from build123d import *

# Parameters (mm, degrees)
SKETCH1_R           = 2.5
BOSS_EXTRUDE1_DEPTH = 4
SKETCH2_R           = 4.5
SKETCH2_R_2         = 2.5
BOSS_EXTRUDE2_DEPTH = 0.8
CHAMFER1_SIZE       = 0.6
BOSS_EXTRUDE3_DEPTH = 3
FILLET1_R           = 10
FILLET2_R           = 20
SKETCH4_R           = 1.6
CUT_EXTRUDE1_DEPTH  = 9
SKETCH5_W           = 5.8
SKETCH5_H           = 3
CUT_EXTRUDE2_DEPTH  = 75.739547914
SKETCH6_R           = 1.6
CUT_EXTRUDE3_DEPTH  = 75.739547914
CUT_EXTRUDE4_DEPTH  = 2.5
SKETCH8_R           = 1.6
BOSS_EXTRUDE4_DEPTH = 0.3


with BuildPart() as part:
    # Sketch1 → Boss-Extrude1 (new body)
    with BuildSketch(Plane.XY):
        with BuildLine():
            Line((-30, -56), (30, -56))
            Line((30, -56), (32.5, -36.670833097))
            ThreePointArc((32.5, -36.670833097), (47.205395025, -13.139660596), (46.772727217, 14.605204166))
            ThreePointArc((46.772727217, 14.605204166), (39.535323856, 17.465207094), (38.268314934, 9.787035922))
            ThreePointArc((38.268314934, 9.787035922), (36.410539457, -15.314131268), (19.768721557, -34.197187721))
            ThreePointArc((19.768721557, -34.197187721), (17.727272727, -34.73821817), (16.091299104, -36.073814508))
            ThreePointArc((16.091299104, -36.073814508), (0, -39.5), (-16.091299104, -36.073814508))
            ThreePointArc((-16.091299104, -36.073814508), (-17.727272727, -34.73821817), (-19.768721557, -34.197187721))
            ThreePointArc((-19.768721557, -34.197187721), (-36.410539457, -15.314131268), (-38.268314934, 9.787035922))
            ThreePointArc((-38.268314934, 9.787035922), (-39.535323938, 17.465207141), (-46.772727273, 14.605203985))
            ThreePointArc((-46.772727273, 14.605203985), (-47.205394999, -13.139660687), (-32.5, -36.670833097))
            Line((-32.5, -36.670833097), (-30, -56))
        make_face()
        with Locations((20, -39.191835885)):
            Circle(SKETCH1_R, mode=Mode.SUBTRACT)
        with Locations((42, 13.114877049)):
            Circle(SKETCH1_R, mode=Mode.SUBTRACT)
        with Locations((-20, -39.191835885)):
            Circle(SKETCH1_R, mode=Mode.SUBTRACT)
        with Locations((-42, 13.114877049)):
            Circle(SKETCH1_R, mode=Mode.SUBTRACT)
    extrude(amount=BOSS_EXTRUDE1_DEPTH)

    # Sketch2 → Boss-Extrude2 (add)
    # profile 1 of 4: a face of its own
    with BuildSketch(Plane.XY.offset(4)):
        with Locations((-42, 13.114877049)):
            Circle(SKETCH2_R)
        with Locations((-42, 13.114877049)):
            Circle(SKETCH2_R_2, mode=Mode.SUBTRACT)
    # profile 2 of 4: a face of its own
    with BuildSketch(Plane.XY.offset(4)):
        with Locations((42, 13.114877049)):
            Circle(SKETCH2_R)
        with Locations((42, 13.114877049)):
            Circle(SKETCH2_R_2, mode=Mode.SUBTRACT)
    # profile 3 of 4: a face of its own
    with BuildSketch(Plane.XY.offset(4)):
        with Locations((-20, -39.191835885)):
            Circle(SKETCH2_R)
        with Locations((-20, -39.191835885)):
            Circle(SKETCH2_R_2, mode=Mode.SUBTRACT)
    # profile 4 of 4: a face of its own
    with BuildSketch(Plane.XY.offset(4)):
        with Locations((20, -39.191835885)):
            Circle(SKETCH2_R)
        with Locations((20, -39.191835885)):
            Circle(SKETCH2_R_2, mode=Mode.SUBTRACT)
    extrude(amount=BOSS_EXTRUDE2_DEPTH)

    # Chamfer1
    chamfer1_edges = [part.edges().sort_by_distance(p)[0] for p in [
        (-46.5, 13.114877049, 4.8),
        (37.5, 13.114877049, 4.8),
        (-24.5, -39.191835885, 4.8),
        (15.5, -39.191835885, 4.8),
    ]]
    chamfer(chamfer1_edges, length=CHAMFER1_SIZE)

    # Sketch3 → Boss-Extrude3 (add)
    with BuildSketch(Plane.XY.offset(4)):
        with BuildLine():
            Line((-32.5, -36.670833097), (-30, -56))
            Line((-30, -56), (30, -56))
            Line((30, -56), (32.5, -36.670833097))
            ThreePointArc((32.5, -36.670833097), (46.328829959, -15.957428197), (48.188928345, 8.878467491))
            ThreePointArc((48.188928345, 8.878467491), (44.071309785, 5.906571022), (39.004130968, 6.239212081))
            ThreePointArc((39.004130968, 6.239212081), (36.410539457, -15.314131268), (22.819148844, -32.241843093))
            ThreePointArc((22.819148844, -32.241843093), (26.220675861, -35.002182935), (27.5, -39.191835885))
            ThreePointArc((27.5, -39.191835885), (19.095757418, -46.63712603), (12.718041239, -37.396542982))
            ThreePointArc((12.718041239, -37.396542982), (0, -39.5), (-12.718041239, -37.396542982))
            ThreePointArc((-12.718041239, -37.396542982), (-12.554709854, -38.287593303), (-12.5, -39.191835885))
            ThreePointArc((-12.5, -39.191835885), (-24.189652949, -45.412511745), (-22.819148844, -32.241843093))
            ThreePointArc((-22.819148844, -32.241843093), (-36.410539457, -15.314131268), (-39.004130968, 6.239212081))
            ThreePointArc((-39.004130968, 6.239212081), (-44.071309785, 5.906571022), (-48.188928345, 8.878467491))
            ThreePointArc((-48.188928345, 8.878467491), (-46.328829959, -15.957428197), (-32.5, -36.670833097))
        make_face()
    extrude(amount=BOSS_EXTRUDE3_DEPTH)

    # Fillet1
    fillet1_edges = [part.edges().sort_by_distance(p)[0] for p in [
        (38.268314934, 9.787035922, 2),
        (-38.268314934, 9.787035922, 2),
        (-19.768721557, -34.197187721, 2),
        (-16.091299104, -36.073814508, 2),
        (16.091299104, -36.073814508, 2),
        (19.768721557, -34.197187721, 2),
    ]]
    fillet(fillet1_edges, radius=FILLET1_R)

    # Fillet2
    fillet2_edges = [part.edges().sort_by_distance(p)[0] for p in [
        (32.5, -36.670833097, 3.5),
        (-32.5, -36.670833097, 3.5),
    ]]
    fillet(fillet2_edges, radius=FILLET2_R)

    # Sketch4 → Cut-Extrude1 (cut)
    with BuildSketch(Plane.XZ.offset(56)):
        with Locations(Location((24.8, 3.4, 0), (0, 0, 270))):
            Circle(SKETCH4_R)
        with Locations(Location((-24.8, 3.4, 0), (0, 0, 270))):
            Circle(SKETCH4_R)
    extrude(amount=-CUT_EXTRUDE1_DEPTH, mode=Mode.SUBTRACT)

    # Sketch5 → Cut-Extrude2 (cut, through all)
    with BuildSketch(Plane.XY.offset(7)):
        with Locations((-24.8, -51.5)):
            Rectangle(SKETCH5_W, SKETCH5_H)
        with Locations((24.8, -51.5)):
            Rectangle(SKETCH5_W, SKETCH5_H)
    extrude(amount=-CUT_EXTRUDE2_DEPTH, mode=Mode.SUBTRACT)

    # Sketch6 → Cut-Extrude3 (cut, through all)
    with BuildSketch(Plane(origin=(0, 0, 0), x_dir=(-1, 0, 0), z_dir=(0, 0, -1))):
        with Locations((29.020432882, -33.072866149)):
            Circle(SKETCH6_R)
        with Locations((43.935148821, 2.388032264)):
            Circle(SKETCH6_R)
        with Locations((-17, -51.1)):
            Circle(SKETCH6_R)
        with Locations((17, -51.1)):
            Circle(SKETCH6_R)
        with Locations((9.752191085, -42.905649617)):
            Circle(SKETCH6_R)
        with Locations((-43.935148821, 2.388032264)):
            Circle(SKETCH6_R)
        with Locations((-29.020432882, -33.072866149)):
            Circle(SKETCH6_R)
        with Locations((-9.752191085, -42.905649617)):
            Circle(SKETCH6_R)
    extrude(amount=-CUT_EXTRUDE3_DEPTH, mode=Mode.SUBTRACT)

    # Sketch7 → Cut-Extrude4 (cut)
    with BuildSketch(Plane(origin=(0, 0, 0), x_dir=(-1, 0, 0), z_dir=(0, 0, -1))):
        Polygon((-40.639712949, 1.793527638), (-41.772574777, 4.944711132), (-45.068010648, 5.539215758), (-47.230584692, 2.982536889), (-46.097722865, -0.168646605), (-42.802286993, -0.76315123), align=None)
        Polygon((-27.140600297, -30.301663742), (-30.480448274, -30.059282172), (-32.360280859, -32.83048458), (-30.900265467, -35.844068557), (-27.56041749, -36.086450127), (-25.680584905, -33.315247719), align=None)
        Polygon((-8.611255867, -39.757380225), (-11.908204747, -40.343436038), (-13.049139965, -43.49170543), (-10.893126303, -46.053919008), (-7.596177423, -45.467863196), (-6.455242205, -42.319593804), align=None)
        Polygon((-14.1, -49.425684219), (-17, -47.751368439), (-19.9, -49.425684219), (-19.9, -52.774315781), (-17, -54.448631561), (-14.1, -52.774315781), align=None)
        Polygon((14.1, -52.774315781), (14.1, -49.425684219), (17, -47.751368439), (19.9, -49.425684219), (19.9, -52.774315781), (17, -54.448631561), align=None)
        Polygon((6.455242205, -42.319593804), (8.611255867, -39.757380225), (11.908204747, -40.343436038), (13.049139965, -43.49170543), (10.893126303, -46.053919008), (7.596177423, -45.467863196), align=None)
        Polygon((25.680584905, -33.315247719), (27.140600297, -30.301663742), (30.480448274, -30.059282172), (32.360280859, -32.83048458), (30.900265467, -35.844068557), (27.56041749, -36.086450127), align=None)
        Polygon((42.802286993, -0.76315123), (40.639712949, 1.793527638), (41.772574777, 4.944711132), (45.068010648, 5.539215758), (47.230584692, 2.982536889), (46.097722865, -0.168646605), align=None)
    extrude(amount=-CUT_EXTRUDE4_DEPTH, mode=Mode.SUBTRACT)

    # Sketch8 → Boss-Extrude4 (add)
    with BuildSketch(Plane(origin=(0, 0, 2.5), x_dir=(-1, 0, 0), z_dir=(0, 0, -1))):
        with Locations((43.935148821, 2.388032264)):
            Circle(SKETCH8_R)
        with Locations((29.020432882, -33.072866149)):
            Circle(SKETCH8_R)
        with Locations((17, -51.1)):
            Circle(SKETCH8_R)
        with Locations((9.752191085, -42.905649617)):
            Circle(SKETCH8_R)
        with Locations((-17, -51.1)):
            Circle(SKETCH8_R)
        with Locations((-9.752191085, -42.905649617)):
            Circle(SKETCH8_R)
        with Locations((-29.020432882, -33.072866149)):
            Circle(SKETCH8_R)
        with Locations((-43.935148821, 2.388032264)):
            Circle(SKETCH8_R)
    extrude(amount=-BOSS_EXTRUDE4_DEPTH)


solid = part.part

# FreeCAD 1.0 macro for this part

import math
import FreeCAD as App
import Part
import Sketcher

V = App.Vector
Q = App.Units.Quantity


def edges_at(feature, points):
    """Names of the edges that pass closest to the given points."""
    edges = feature.Shape.Edges
    near = lambda p: min(range(len(edges)), key=lambda i: edges[i].distToShape(Part.Vertex(*p))[0])
    return sorted({f"Edge{near(p) + 1}" for p in points})


def add_polygon(sketch, points):
    """Adds a closed chain of lines whose ends are joined by coincident constraints."""
    first, n = sketch.GeometryCount, len(points)
    for a, b in zip(points, points[1:] + points[:1]):
        sketch.addGeometry(Part.LineSegment(App.Vector(*a, 0), App.Vector(*b, 0)), False)
    for i in range(n):
        sketch.addConstraint(Sketcher.Constraint("Coincident", first + i, 2, first + (i + 1) % n, 1))

doc = App.newDocument("Part")
params = doc.addObject("Spreadsheet::Sheet", "Params")
for row, (alias, value) in enumerate([
    ("sketch1_diameter", "5 mm"),
    ("sketch1_radius", "49 mm"),
    ("sketch1_radius2", "5 mm"),
    ("sketch1_radius3", "39.5 mm"),
    ("sketch1_width", "60 mm"),
    ("pad1_length", "4 mm"),
    ("sketch2_diameter", "9 mm"),
    ("sketch2_diameter2", "5 mm"),
    ("pad2_length", "0.8 mm"),
    ("chamfer_size", "0.6 mm"),
    ("sketch3_radius", "49 mm"),
    ("sketch3_radius2", "7.5 mm"),
    ("sketch3_radius3", "39.5 mm"),
    ("sketch3_width", "60 mm"),
    ("pad3_length", "3 mm"),
    ("fillet_radius", "10 mm"),
    ("fillet2_radius", "20 mm"),
    ("sketch4_diameter", "3.2 mm"),
    ("pocket1_length", "9 mm"),
    ("sketch5_height", "3 mm"),
    ("sketch5_width", "5.8 mm"),
    ("sketch6_diameter", "3.2 mm"),
    ("pocket4_length", "2.5 mm"),
    ("sketch8_diameter", "3.2 mm"),
    ("pad4_length", "0.3 mm"),
], start=1):
    params.set(f"A{row}", alias)
    params.set(f"B{row}", "=" + value)
    params.setAlias(f"B{row}", alias)

body = doc.addObject("PartDesign::Body", "Body")

sketch1 = doc.addObject("Sketcher::SketchObject", "Sketch")
body.addObject(sketch1)
sketch1.AttachmentSupport = (doc.XY_Plane, [""])
sketch1.MapMode = "FlatFace"
sketch1.addGeometry([
    Part.LineSegment(V(-30, -56, 0), V(30, -56, 0)),
    Part.LineSegment(V(30, -56, 0), V(32.5, -36.7, 0)),
    Part.ArcOfCircle(Part.Circle(V(0, 0, 0), V(0, 0, 1), 49), math.radians(-48), math.radians(17)),
    Part.ArcOfCircle(Part.Circle(V(42, 13.1, 0), V(0, 0, 1), 5), math.radians(17), math.radians(222)),
    Part.ArcOfCircle(Part.Circle(V(0, 0, 0), V(0, 0, 1), 39.5), math.radians(-60), math.radians(14)),
    Part.ArcOfCircle(Part.Circle(V(20, -39.2, 0), V(0, 0, 1), 5), math.radians(93), math.radians(141)),
    Part.ArcOfCircle(Part.Circle(V(0, 0, 0), V(0, 0, 1), 39.5), math.radians(-114), math.radians(-66)),
    Part.ArcOfCircle(Part.Circle(V(-20, -39.2, 0), V(0, 0, 1), 5), math.radians(39), math.radians(87)),
    Part.ArcOfCircle(Part.Circle(V(0, 0, 0), V(0, 0, 1), 39.5), math.radians(166), math.radians(240)),
    Part.ArcOfCircle(Part.Circle(V(-42, 13.1, 0), V(0, 0, 1), 5), math.radians(-42), math.radians(163)),
    Part.ArcOfCircle(Part.Circle(V(0, 0, 0), V(0, 0, 1), 49), math.radians(163), math.radians(228)),
    Part.LineSegment(V(-32.5, -36.7, 0), V(-30, -56, 0)),
    Part.Circle(V(-20, -39.2, 0), V(0, 0, 1), 2.5),
    Part.Circle(V(20, -39.2, 0), V(0, 0, 1), 2.5),
    Part.Circle(V(-42, 13.1, 0), V(0, 0, 1), 2.5),
    Part.Circle(V(42, 13.1, 0), V(0, 0, 1), 2.5),
], False)
sketch1.addConstraint([
    Sketcher.Constraint("Coincident", 0, 2, 1, 1),
    Sketcher.Constraint("Coincident", 1, 2, 2, 1),
    Sketcher.Constraint("Tangent", 2, 2, 3, 1),
    Sketcher.Constraint("Coincident", 3, 2, 4, 2),
    Sketcher.Constraint("Coincident", 4, 1, 5, 1),
    Sketcher.Constraint("Coincident", 5, 2, 6, 2),
    Sketcher.Constraint("Coincident", 6, 1, 7, 1),
    Sketcher.Constraint("Coincident", 7, 2, 8, 2),
    Sketcher.Constraint("Coincident", 8, 1, 9, 1),
    Sketcher.Constraint("Tangent", 9, 2, 10, 1),
    Sketcher.Constraint("Coincident", 10, 2, 11, 1),
    Sketcher.Constraint("Coincident", 11, 2, 0, 1),
    Sketcher.Constraint("Horizontal", 0),
    Sketcher.Constraint("Coincident", 2, 3, -1, 1),
    Sketcher.Constraint("Coincident", 4, 3, -1, 1),
    Sketcher.Constraint("Coincident", 6, 3, -1, 1),
    Sketcher.Constraint("Coincident", 8, 3, -1, 1),
    Sketcher.Constraint("Coincident", 10, 3, -1, 1),
    Sketcher.Constraint("Coincident", 12, 3, 7, 3),
    Sketcher.Constraint("Coincident", 13, 3, 5, 3),
    Sketcher.Constraint("Coincident", 14, 3, 9, 3),
    Sketcher.Constraint("Coincident", 15, 3, 3, 3),
    Sketcher.Constraint("Equal", 3, 5),
    Sketcher.Constraint("Equal", 4, 6),
    Sketcher.Constraint("Equal", 5, 7),
    Sketcher.Constraint("Equal", 6, 8),
    Sketcher.Constraint("Equal", 7, 9),
    Sketcher.Constraint("Equal", 2, 10),
    Sketcher.Constraint("Equal", 12, 13),
    Sketcher.Constraint("Equal", 13, 14),
    Sketcher.Constraint("Equal", 14, 15),
    Sketcher.Constraint("Symmetric", 5, 3, 7, 3, -2),
    Sketcher.Constraint("Horizontal", 3, 3, 9, 3),
    Sketcher.Constraint("Horizontal", 1, 2, 10, 2),
    Sketcher.Constraint("Equal", 1, 11),
    Sketcher.Constraint("Diameter", 12, 5.0),
    Sketcher.Constraint("Radius", 2, 49.0),
    Sketcher.Constraint("Radius", 3, 5.0),
    Sketcher.Constraint("Radius", 4, 39.5),
    Sketcher.Constraint("DistanceX", 0, 1, 0, 2, 60.0),
    Sketcher.Constraint("DistanceX", -1, 1, 3, 3, 42.0),
    Sketcher.Constraint("DistanceX", -1, 1, 5, 3, 20.0),
    Sketcher.Constraint("DistanceY", 0, 2, -1, 1, 56.0),
    Sketcher.Constraint("DistanceX", -1, 1, 1, 2, 32.5),
    Sketcher.Constraint("DistanceX", -1, 1, 5, 2, 16.091299),
])
sketch1.setExpression("Constraints[35]", "Params.sketch1_diameter")
sketch1.setExpression("Constraints[36]", "Params.sketch1_radius")
sketch1.setExpression("Constraints[37]", "Params.sketch1_radius2")
sketch1.setExpression("Constraints[38]", "Params.sketch1_radius3")
sketch1.setExpression("Constraints[39]", "Params.sketch1_width")
pad1 = doc.addObject("PartDesign::Pad", "Pad")
body.addObject(pad1)
pad1.Profile = sketch1
pad1.setExpression("Length", "Params.pad1_length")

sketch2 = doc.addObject("Sketcher::SketchObject", "Sketch001")
body.addObject(sketch2)
sketch2.AttachmentSupport = (doc.XY_Plane, [""])
sketch2.MapMode = "FlatFace"
sketch2.AttachmentOffset = App.Placement(V(0, 0, 4), App.Rotation())
sketch2.addGeometry([
    Part.Circle(V(-42, 13.1, 0), V(0, 0, 1), 4.5),
    Part.Circle(V(-42, 13.1, 0), V(0, 0, 1), 2.5),
    Part.Circle(V(42, 13.1, 0), V(0, 0, 1), 4.5),
    Part.Circle(V(42, 13.1, 0), V(0, 0, 1), 2.5),
    Part.Circle(V(-20, -39.2, 0), V(0, 0, 1), 4.5),
    Part.Circle(V(-20, -39.2, 0), V(0, 0, 1), 2.5),
    Part.Circle(V(20, -39.2, 0), V(0, 0, 1), 4.5),
    Part.Circle(V(20, -39.2, 0), V(0, 0, 1), 2.5),
], False)
sketch2.addConstraint([
    Sketcher.Constraint("Coincident", 1, 3, 0, 3),
    Sketcher.Constraint("Coincident", 3, 3, 2, 3),
    Sketcher.Constraint("Coincident", 5, 3, 4, 3),
    Sketcher.Constraint("Coincident", 7, 3, 6, 3),
    Sketcher.Constraint("Equal", 0, 2),
    Sketcher.Constraint("Equal", 1, 3),
    Sketcher.Constraint("Equal", 2, 4),
    Sketcher.Constraint("Equal", 3, 5),
    Sketcher.Constraint("Equal", 4, 6),
    Sketcher.Constraint("Equal", 5, 7),
    Sketcher.Constraint("Symmetric", 0, 3, 2, 3, -2),
    Sketcher.Constraint("Symmetric", 4, 3, 6, 3, -2),
    Sketcher.Constraint("Diameter", 0, 9.0),
    Sketcher.Constraint("Diameter", 1, 5.0),
    Sketcher.Constraint("DistanceX", 0, 3, -1, 1, 42.0),
    Sketcher.Constraint("DistanceX", 4, 3, -1, 1, 20.0),
    Sketcher.Constraint("DistanceY", -1, 1, 0, 3, 13.114877),
    Sketcher.Constraint("DistanceY", 4, 3, -1, 1, 39.191836),
])
sketch2.setExpression("Constraints[12]", "Params.sketch2_diameter")
sketch2.setExpression("Constraints[13]", "Params.sketch2_diameter2")
pad2 = doc.addObject("PartDesign::Pad", "Pad001")
body.addObject(pad2)
pad2.Profile = sketch2
pad2.setExpression("Length", "Params.pad2_length")
doc.recompute()

chamfer = doc.addObject("PartDesign::Chamfer", "Chamfer")
body.addObject(chamfer)
chamfer.Base = (pad2, edges_at(pad2, [
    (-46.5, 13.115, 4.8),
    (37.5, 13.115, 4.8),
    (-24.5, -39.192, 4.8),
    (15.5, -39.192, 4.8),
]))
chamfer.setExpression("Size", "Params.chamfer_size")

sketch3 = doc.addObject("Sketcher::SketchObject", "Sketch002")
body.addObject(sketch3)
sketch3.AttachmentSupport = (doc.XY_Plane, [""])
sketch3.MapMode = "FlatFace"
sketch3.AttachmentOffset = App.Placement(V(0, 0, 4), App.Rotation())
sketch3.addGeometry([
    Part.LineSegment(V(-32.5, -36.7, 0), V(-30, -56, 0)),
    Part.LineSegment(V(-30, -56, 0), V(30, -56, 0)),
    Part.LineSegment(V(30, -56, 0), V(32.5, -36.7, 0)),
    Part.ArcOfCircle(Part.Circle(V(0, 0, 0), V(0, 0, 1), 49), math.radians(-48), math.radians(10)),
    Part.ArcOfCircle(Part.Circle(V(42, 13.1, 0), V(0, 0, 1), 7.5), math.radians(-114), math.radians(-34)),
    Part.ArcOfCircle(Part.Circle(V(0, 0, 0), V(0, 0, 1), 39.5), math.radians(-55), math.radians(9)),
    Part.ArcOfCircle(Part.Circle(V(20, -39.2, 0), V(0, 0, 1), 7.5), math.radians(0), math.radians(68)),
    Part.ArcOfCircle(Part.Circle(V(20, -39.2, 0), V(0, 0, 1), 7.5), math.radians(166), math.radians(360)),
    Part.ArcOfCircle(Part.Circle(V(0, 0, 0), V(0, 0, 1), 39.5), math.radians(-109), math.radians(-71)),
    Part.ArcOfCircle(Part.Circle(V(-20, -39.2, 0), V(0, 0, 1), 7.5), math.radians(0), math.radians(13.85)),
    Part.ArcOfCircle(Part.Circle(V(-20, -39.2, 0), V(0, 0, 1), 7.5), math.radians(112), math.radians(360)),
    Part.ArcOfCircle(Part.Circle(V(0, 0, 0), V(0, 0, 1), 39.5), math.radians(171), math.radians(235)),
    Part.ArcOfCircle(Part.Circle(V(-42, 13.1, 0), V(0, 0, 1), 7.5), math.radians(-146), math.radians(-66)),
    Part.ArcOfCircle(Part.Circle(V(0, 0, 0), V(0, 0, 1), 49), math.radians(170), math.radians(228)),
], False)
sketch3.addConstraint([
    Sketcher.Constraint("Coincident", 0, 2, 1, 1),
    Sketcher.Constraint("Coincident", 1, 2, 2, 1),
    Sketcher.Constraint("Coincident", 2, 2, 3, 1),
    Sketcher.Constraint("Coincident", 3, 2, 4, 2),
    Sketcher.Constraint("Coincident", 4, 1, 5, 2),
    Sketcher.Constraint("Coincident", 5, 1, 6, 2),
    Sketcher.Constraint("Tangent", 6, 1, 7, 2),
    Sketcher.Constraint("Coincident", 7, 1, 8, 2),
    Sketcher.Constraint("Coincident", 8, 1, 9, 2),
    Sketcher.Constraint("Tangent", 9, 1, 10, 2),
    Sketcher.Constraint("Coincident", 10, 1, 11, 2),
    Sketcher.Constraint("Coincident", 11, 1, 12, 2),
    Sketcher.Constraint("Coincident", 12, 1, 13, 1),
    Sketcher.Constraint("Coincident", 13, 2, 0, 1),
    Sketcher.Constraint("Horizontal", 1),
    Sketcher.Constraint("Coincident", 3, 3, -1, 1),
    Sketcher.Constraint("Coincident", 5, 3, -1, 1),
    Sketcher.Constraint("Coincident", 8, 3, -1, 1),
    Sketcher.Constraint("Coincident", 11, 3, -1, 1),
    Sketcher.Constraint("Coincident", 13, 3, -1, 1),
    Sketcher.Constraint("Equal", 4, 6),
    Sketcher.Constraint("Equal", 6, 7),
    Sketcher.Constraint("Equal", 5, 8),
    Sketcher.Constraint("Equal", 7, 9),
    Sketcher.Constraint("Equal", 9, 10),
    Sketcher.Constraint("Equal", 8, 11),
    Sketcher.Constraint("Equal", 10, 12),
    Sketcher.Constraint("Equal", 3, 13),
    Sketcher.Constraint("Symmetric", 6, 3, 9, 3, -2),
    Sketcher.Constraint("Symmetric", 4, 3, 12, 3, -2),
    Sketcher.Constraint("Horizontal", 10, 3, 6, 1),
    Sketcher.Constraint("Horizontal", 6, 1, 9, 1),
    Sketcher.Constraint("Horizontal", 2, 2, 13, 2),
    Sketcher.Constraint("Equal", 0, 2),
    Sketcher.Constraint("Radius", 3, 49.0),
    Sketcher.Constraint("Radius", 4, 7.5),
    Sketcher.Constraint("Radius", 5, 39.5),
    Sketcher.Constraint("DistanceX", 1, 1, 1, 2, 60.0),
    Sketcher.Constraint("DistanceX", -1, 1, 4, 3, 42.0),
    Sketcher.Constraint("DistanceX", -1, 1, 6, 3, 20.0),
    Sketcher.Constraint("DistanceY", 0, 2, -1, 1, 56.0),
    Sketcher.Constraint("DistanceX", 6, 1, 2, 2, 5.0),
    Sketcher.Constraint("DistanceY", 2, 2, 3, 2, 45.549301),
    Sketcher.Constraint("DistanceY", 7, 1, 5, 1, 5.1547),
])
sketch3.setExpression("Constraints[34]", "Params.sketch3_radius")
sketch3.setExpression("Constraints[35]", "Params.sketch3_radius2")
sketch3.setExpression("Constraints[36]", "Params.sketch3_radius3")
sketch3.setExpression("Constraints[37]", "Params.sketch3_width")
pad3 = doc.addObject("PartDesign::Pad", "Pad002")
body.addObject(pad3)
pad3.Profile = sketch3
pad3.setExpression("Length", "Params.pad3_length")
doc.recompute()

fillet = doc.addObject("PartDesign::Fillet", "Fillet")
body.addObject(fillet)
fillet.Base = (pad3, edges_at(pad3, [
    (38.268, 9.787, 2),
    (-38.268, 9.787, 2),
    (-19.769, -34.197, 2),
    (-16.091, -36.074, 2),
    (16.091, -36.074, 2),
    (19.769, -34.197, 2),
]))
fillet.setExpression("Radius", "Params.fillet_radius")
doc.recompute()

fillet2 = doc.addObject("PartDesign::Fillet", "Fillet001")
body.addObject(fillet2)
fillet2.Base = (fillet, edges_at(fillet, [(32.5, -36.671, 2), (-32.5, -36.671, 2)]))
fillet2.setExpression("Radius", "Params.fillet2_radius")

sketch4 = doc.addObject("Sketcher::SketchObject", "Sketch003")
body.addObject(sketch4)
sketch4.AttachmentSupport = (doc.XZ_Plane, [""])
sketch4.MapMode = "FlatFace"
sketch4.AttachmentOffset = App.Placement(V(0, 0, 56), App.Rotation())
sketch4.addGeometry([
    Part.Circle(V(24.8, 3.4, 0), V(0, 0, 1), 1.6),
    Part.Circle(V(-24.8, 3.4, 0), V(0, 0, 1), 1.6),
], False)
sketch4.addConstraint([
    Sketcher.Constraint("Equal", 0, 1),
    Sketcher.Constraint("Symmetric", 0, 3, 1, 3, -2),
    Sketcher.Constraint("Diameter", 0, 3.2),
    Sketcher.Constraint("DistanceX", -1, 1, 0, 3, 24.8),
    Sketcher.Constraint("DistanceY", -1, 1, 0, 3, 3.4),
])
sketch4.setExpression("Constraints[2]", "Params.sketch4_diameter")
pocket1 = doc.addObject("PartDesign::Pocket", "Pocket")
body.addObject(pocket1)
pocket1.Profile = sketch4
pocket1.setExpression("Length", "Params.pocket1_length")

sketch5 = doc.addObject("Sketcher::SketchObject", "Sketch004")
body.addObject(sketch5)
sketch5.AttachmentSupport = (doc.XY_Plane, [""])
sketch5.MapMode = "FlatFace"
sketch5.AttachmentOffset = App.Placement(V(0, 0, 7), App.Rotation())
add_polygon(sketch5, [(-27.7, -50), (-27.7, -53), (-21.9, -53), (-21.9, -50)])
add_polygon(sketch5, [(21.9, -50), (21.9, -53), (27.7, -53), (27.7, -50)])
sketch5.addConstraint([
    Sketcher.Constraint("Vertical", 0),
    Sketcher.Constraint("Horizontal", 1),
    Sketcher.Constraint("Vertical", 2),
    Sketcher.Constraint("Horizontal", 3),
    Sketcher.Constraint("Vertical", 4),
    Sketcher.Constraint("Horizontal", 5),
    Sketcher.Constraint("Vertical", 6),
    Sketcher.Constraint("Horizontal", 7),
    Sketcher.Constraint("Symmetric", 1, 2, 4, 2, -2),
    Sketcher.Constraint("Symmetric", 3, 2, 6, 2, -2),
    Sketcher.Constraint("DistanceY", 0, 2, 0, 1, 3.0),
    Sketcher.Constraint("DistanceX", 1, 1, 1, 2, 5.8),
    Sketcher.Constraint("DistanceY", 0, 2, -1, 1, 53.0),
    Sketcher.Constraint("DistanceX", 0, 2, -1, 1, 27.7),
])
sketch5.setExpression("Constraints[18]", "Params.sketch5_height")
sketch5.setExpression("Constraints[19]", "Params.sketch5_width")
pocket2 = doc.addObject("PartDesign::Pocket", "Pocket001")
body.addObject(pocket2)
pocket2.Profile = sketch5
pocket2.Type = "ThroughAll"

sketch6 = doc.addObject("Sketcher::SketchObject", "Sketch005")
body.addObject(sketch6)
sketch6.AttachmentSupport = (doc.XY_Plane, [""])
sketch6.MapMode = "FlatFace"
sketch6.addGeometry([
    Part.Circle(V(-29, -33.1, 0), V(0, 0, 1), 1.6),
    Part.Circle(V(-43.9, 2.4, 0), V(0, 0, 1), 1.6),
    Part.Circle(V(17, -51.1, 0), V(0, 0, 1), 1.6),
    Part.Circle(V(-17, -51.1, 0), V(0, 0, 1), 1.6),
    Part.Circle(V(-9.8, -42.9, 0), V(0, 0, 1), 1.6),
    Part.Circle(V(43.9, 2.4, 0), V(0, 0, 1), 1.6),
    Part.Circle(V(29, -33.1, 0), V(0, 0, 1), 1.6),
    Part.Circle(V(9.8, -42.9, 0), V(0, 0, 1), 1.6),
], False)
sketch6.addConstraint([
    Sketcher.Constraint("Equal", 0, 1),
    Sketcher.Constraint("Equal", 1, 2),
    Sketcher.Constraint("Equal", 2, 3),
    Sketcher.Constraint("Equal", 3, 4),
    Sketcher.Constraint("Equal", 4, 5),
    Sketcher.Constraint("Equal", 5, 6),
    Sketcher.Constraint("Equal", 6, 7),
    Sketcher.Constraint("Symmetric", 2, 3, 3, 3, -2),
    Sketcher.Constraint("Symmetric", 1, 3, 5, 3, -2),
    Sketcher.Constraint("Symmetric", 0, 3, 6, 3, -2),
    Sketcher.Constraint("Symmetric", 4, 3, 7, 3, -2),
    Sketcher.Constraint("Diameter", 0, 3.2),
    Sketcher.Constraint("DistanceX", -1, 1, 2, 3, 17.0),
    Sketcher.Constraint("DistanceY", 2, 3, -1, 1, 51.1),
    Sketcher.Constraint("DistanceY", 0, 3, 1, 3, 35.460898),
    Sketcher.Constraint("DistanceX", 1, 3, -1, 1, 43.935149),
    Sketcher.Constraint("DistanceX", 4, 3, -1, 1, 9.752191),
    Sketcher.Constraint("DistanceY", 4, 3, -1, 1, 42.90565),
    Sketcher.Constraint("DistanceX", 0, 3, 4, 3, 19.268242),
    Sketcher.Constraint("DistanceY", 4, 3, 1, 3, 45.293682),
])
sketch6.setExpression("Constraints[11]", "Params.sketch6_diameter")
pocket3 = doc.addObject("PartDesign::Pocket", "Pocket002")
body.addObject(pocket3)
pocket3.Profile = sketch6
pocket3.Type = "ThroughAll"
pocket3.Reversed = True

sketch7 = doc.addObject("Sketcher::SketchObject", "Sketch006")
body.addObject(sketch7)
sketch7.AttachmentSupport = (doc.XY_Plane, [""])
sketch7.MapMode = "FlatFace"
add_polygon(sketch7, [(40.6, 1.8), (41.8, 4.9), (45.1, 5.5), (47.2, 3), (46.1, -0.2), (42.8, -0.8)])
add_polygon(sketch7, [(27.1, -30.3), (30.5, -30.1), (32.4, -32.8), (30.9, -35.8), (27.6, -36.1), (25.7, -33.3)])
add_polygon(sketch7, [(8.6, -39.8), (11.9, -40.3), (13, -43.5), (10.9, -46.1), (7.6, -45.5), (6.5, -42.3)])
add_polygon(sketch7, [(14.1, -49.4), (17, -47.8), (19.9, -49.4), (19.9, -52.8), (17, -54.4), (14.1, -52.8)])
add_polygon(sketch7, [(-14.1, -49.4), (-14.1, -52.8), (-17, -54.4), (-19.9, -52.8), (-19.9, -49.4), (-17, -47.8)])
add_polygon(sketch7, [(-8.6, -39.8), (-6.5, -42.3), (-7.6, -45.5), (-10.9, -46.1), (-13, -43.5), (-11.9, -40.3)])
add_polygon(sketch7, [(-27.1, -30.3), (-25.7, -33.3), (-27.6, -36.1), (-30.9, -35.8), (-32.4, -32.8), (-30.5, -30.1)])
add_polygon(sketch7, [(-40.6, 1.8), (-42.8, -0.8), (-46.1, -0.2), (-47.2, 3), (-45.1, 5.5), (-41.8, 4.9)])
sketch7.addConstraint([
    Sketcher.Constraint("Vertical", 20),
    Sketcher.Constraint("Vertical", 23),
    Sketcher.Constraint("Vertical", 24),
    Sketcher.Constraint("Vertical", 27),
    Sketcher.Constraint("Symmetric", 22, 2, 24, 2, -2),
    Sketcher.Constraint("Symmetric", 21, 2, 25, 2, -2),
    Sketcher.Constraint("Symmetric", 20, 2, 26, 2, -2),
    Sketcher.Constraint("Symmetric", 18, 2, 28, 2, -2),
    Sketcher.Constraint("Symmetric", 16, 2, 30, 2, -2),
    Sketcher.Constraint("Symmetric", 15, 2, 31, 2, -2),
    Sketcher.Constraint("Symmetric", 14, 2, 32, 2, -2),
    Sketcher.Constraint("Symmetric", 13, 2, 33, 2, -2),
    Sketcher.Constraint("Symmetric", 12, 2, 34, 2, -2),
    Sketcher.Constraint("Symmetric", 17, 2, 35, 2, -2),
    Sketcher.Constraint("Symmetric", 10, 2, 36, 2, -2),
    Sketcher.Constraint("Symmetric", 9, 2, 37, 2, -2),
    Sketcher.Constraint("Symmetric", 8, 2, 38, 2, -2),
    Sketcher.Constraint("Symmetric", 7, 2, 39, 2, -2),
    Sketcher.Constraint("Symmetric", 6, 2, 40, 2, -2),
    Sketcher.Constraint("Symmetric", 11, 2, 41, 2, -2),
    Sketcher.Constraint("Symmetric", 4, 2, 42, 2, -2),
    Sketcher.Constraint("Symmetric", 3, 2, 43, 2, -2),
    Sketcher.Constraint("Symmetric", 2, 2, 44, 2, -2),
    Sketcher.Constraint("Symmetric", 1, 2, 45, 2, -2),
    Sketcher.Constraint("Symmetric", 0, 2, 46, 2, -2),
    Sketcher.Constraint("Symmetric", 5, 2, 47, 2, -2),
    Sketcher.Constraint("Parallel", 0, 3),
    Sketcher.Constraint("Parallel", 1, 4),
    Sketcher.Constraint("Parallel", 2, 5),
    Sketcher.Constraint("Parallel", 6, 9),
    Sketcher.Constraint("Parallel", 7, 10),
    Sketcher.Constraint("Parallel", 8, 11),
    Sketcher.Constraint("Parallel", 12, 15),
    Sketcher.Constraint("Parallel", 13, 16),
    Sketcher.Constraint("Parallel", 14, 17),
    Sketcher.Constraint("Parallel", 18, 21),
    Sketcher.Constraint("Parallel", 19, 22),
    Sketcher.Constraint("Parallel", 21, 25),
    Sketcher.Constraint("Parallel", 25, 28),
    Sketcher.Constraint("Parallel", 26, 29),
    Sketcher.Constraint("Horizontal", 20, 2, 22, 2),
    Sketcher.Constraint("Horizontal", 19, 2, 23, 2),
    Sketcher.Constraint("Equal", 0, 1),
    Sketcher.Constraint("Equal", 1, 2),
    Sketcher.Constraint("Equal", 2, 3),
    Sketcher.Constraint("Equal", 5, 6),
    Sketcher.Constraint("Equal", 6, 7),
    Sketcher.Constraint("Equal", 7, 8),
    Sketcher.Constraint("Equal", 8, 9),
    Sketcher.Constraint("Equal", 11, 12),
    Sketcher.Constraint("Equal", 12, 13),
    Sketcher.Constraint("Equal", 13, 14),
    Sketcher.Constraint("Equal", 14, 15),
    Sketcher.Constraint("Equal", 17, 18),
    Sketcher.Constraint("Angle", 18, Q("30 deg")),
    Sketcher.Constraint("DistanceX", -1, 1, 18, 2, 17.0),
    Sketcher.Constraint("DistanceX", -1, 1, 19, 2, 19.9),
    Sketcher.Constraint("DistanceY", 20, 2, 20, 1, 3.348632),
    Sketcher.Constraint("DistanceX", -1, 1, 11, 2, 27.1406),
    Sketcher.Constraint("DistanceY", 9, 2, 4, 2, 35.323299),
    Sketcher.Constraint("DistanceY", 28, 2, 38, 2, 11.9073),
    Sketcher.Constraint("DistanceY", 27, 2, 39, 2, 16.5952),
    Sketcher.Constraint("DistanceY", 41, 2, 44, 2, 33.284201),
    Sketcher.Constraint("DistanceY", -1, 1, 0, 2, 4.944711),
    Sketcher.Constraint("DistanceX", -1, 1, 1, 2, 45.068011),
    Sketcher.Constraint("DistanceY", 4, 2, -1, 1, 0.763151),
    Sketcher.Constraint("DistanceX", -1, 1, 6, 2, 30.480448),
    Sketcher.Constraint("DistanceX", -1, 1, 7, 2, 32.360281),
    Sketcher.Constraint("DistanceX", -1, 1, 13, 2, 13.04914),
    Sketcher.Constraint("DistanceY", 14, 2, -1, 1, 46.053919),
    Sketcher.Constraint("DistanceY", 17, 2, -1, 1, 39.75738),
    Sketcher.Constraint("DistanceY", 2, 2, 1, 2, 2.556679),
    Sketcher.Constraint("DistanceX", 12, 2, 10, 2, 13.77238),
    Sketcher.Constraint("DistanceY", 12, 2, 10, 2, 7.028188),
])
pocket4 = doc.addObject("PartDesign::Pocket", "Pocket003")
body.addObject(pocket4)
pocket4.Profile = sketch7
pocket4.setExpression("Length", "Params.pocket4_length")
pocket4.Reversed = True

sketch8 = doc.addObject("Sketcher::SketchObject", "Sketch007")
body.addObject(sketch8)
sketch8.AttachmentSupport = (doc.XY_Plane, [""])
sketch8.MapMode = "FlatFace"
sketch8.AttachmentOffset = App.Placement(V(0, 0, 2.5), App.Rotation())
sketch8.addGeometry([
    Part.Circle(V(-43.9, 2.4, 0), V(0, 0, 1), 1.6),
    Part.Circle(V(-29, -33.1, 0), V(0, 0, 1), 1.6),
    Part.Circle(V(-17, -51.1, 0), V(0, 0, 1), 1.6),
    Part.Circle(V(-9.8, -42.9, 0), V(0, 0, 1), 1.6),
    Part.Circle(V(17, -51.1, 0), V(0, 0, 1), 1.6),
    Part.Circle(V(9.8, -42.9, 0), V(0, 0, 1), 1.6),
    Part.Circle(V(29, -33.1, 0), V(0, 0, 1), 1.6),
    Part.Circle(V(43.9, 2.4, 0), V(0, 0, 1), 1.6),
], False)
sketch8.addConstraint([
    Sketcher.Constraint("Equal", 0, 1),
    Sketcher.Constraint("Equal", 1, 2),
    Sketcher.Constraint("Equal", 2, 3),
    Sketcher.Constraint("Equal", 3, 4),
    Sketcher.Constraint("Equal", 4, 5),
    Sketcher.Constraint("Equal", 5, 6),
    Sketcher.Constraint("Equal", 6, 7),
    Sketcher.Constraint("Symmetric", 2, 3, 4, 3, -2),
    Sketcher.Constraint("Symmetric", 3, 3, 5, 3, -2),
    Sketcher.Constraint("Symmetric", 1, 3, 6, 3, -2),
    Sketcher.Constraint("Symmetric", 0, 3, 7, 3, -2),
    Sketcher.Constraint("Diameter", 0, 3.2),
    Sketcher.Constraint("DistanceX", 2, 3, -1, 1, 17.0),
    Sketcher.Constraint("DistanceY", 2, 3, -1, 1, 51.1),
    Sketcher.Constraint("DistanceY", 1, 3, 0, 3, 35.460898),
    Sketcher.Constraint("DistanceX", 0, 3, -1, 1, 43.935149),
    Sketcher.Constraint("DistanceX", 3, 3, -1, 1, 9.752191),
    Sketcher.Constraint("DistanceY", 3, 3, -1, 1, 42.90565),
    Sketcher.Constraint("DistanceX", 1, 3, 3, 3, 19.268242),
    Sketcher.Constraint("DistanceY", 3, 3, 0, 3, 45.293682),
])
sketch8.setExpression("Constraints[11]", "Params.sketch8_diameter")
pad4 = doc.addObject("PartDesign::Pad", "Pad003")
body.addObject(pad4)
pad4.Profile = sketch8
pad4.setExpression("Length", "Params.pad4_length")

doc.recompute()
